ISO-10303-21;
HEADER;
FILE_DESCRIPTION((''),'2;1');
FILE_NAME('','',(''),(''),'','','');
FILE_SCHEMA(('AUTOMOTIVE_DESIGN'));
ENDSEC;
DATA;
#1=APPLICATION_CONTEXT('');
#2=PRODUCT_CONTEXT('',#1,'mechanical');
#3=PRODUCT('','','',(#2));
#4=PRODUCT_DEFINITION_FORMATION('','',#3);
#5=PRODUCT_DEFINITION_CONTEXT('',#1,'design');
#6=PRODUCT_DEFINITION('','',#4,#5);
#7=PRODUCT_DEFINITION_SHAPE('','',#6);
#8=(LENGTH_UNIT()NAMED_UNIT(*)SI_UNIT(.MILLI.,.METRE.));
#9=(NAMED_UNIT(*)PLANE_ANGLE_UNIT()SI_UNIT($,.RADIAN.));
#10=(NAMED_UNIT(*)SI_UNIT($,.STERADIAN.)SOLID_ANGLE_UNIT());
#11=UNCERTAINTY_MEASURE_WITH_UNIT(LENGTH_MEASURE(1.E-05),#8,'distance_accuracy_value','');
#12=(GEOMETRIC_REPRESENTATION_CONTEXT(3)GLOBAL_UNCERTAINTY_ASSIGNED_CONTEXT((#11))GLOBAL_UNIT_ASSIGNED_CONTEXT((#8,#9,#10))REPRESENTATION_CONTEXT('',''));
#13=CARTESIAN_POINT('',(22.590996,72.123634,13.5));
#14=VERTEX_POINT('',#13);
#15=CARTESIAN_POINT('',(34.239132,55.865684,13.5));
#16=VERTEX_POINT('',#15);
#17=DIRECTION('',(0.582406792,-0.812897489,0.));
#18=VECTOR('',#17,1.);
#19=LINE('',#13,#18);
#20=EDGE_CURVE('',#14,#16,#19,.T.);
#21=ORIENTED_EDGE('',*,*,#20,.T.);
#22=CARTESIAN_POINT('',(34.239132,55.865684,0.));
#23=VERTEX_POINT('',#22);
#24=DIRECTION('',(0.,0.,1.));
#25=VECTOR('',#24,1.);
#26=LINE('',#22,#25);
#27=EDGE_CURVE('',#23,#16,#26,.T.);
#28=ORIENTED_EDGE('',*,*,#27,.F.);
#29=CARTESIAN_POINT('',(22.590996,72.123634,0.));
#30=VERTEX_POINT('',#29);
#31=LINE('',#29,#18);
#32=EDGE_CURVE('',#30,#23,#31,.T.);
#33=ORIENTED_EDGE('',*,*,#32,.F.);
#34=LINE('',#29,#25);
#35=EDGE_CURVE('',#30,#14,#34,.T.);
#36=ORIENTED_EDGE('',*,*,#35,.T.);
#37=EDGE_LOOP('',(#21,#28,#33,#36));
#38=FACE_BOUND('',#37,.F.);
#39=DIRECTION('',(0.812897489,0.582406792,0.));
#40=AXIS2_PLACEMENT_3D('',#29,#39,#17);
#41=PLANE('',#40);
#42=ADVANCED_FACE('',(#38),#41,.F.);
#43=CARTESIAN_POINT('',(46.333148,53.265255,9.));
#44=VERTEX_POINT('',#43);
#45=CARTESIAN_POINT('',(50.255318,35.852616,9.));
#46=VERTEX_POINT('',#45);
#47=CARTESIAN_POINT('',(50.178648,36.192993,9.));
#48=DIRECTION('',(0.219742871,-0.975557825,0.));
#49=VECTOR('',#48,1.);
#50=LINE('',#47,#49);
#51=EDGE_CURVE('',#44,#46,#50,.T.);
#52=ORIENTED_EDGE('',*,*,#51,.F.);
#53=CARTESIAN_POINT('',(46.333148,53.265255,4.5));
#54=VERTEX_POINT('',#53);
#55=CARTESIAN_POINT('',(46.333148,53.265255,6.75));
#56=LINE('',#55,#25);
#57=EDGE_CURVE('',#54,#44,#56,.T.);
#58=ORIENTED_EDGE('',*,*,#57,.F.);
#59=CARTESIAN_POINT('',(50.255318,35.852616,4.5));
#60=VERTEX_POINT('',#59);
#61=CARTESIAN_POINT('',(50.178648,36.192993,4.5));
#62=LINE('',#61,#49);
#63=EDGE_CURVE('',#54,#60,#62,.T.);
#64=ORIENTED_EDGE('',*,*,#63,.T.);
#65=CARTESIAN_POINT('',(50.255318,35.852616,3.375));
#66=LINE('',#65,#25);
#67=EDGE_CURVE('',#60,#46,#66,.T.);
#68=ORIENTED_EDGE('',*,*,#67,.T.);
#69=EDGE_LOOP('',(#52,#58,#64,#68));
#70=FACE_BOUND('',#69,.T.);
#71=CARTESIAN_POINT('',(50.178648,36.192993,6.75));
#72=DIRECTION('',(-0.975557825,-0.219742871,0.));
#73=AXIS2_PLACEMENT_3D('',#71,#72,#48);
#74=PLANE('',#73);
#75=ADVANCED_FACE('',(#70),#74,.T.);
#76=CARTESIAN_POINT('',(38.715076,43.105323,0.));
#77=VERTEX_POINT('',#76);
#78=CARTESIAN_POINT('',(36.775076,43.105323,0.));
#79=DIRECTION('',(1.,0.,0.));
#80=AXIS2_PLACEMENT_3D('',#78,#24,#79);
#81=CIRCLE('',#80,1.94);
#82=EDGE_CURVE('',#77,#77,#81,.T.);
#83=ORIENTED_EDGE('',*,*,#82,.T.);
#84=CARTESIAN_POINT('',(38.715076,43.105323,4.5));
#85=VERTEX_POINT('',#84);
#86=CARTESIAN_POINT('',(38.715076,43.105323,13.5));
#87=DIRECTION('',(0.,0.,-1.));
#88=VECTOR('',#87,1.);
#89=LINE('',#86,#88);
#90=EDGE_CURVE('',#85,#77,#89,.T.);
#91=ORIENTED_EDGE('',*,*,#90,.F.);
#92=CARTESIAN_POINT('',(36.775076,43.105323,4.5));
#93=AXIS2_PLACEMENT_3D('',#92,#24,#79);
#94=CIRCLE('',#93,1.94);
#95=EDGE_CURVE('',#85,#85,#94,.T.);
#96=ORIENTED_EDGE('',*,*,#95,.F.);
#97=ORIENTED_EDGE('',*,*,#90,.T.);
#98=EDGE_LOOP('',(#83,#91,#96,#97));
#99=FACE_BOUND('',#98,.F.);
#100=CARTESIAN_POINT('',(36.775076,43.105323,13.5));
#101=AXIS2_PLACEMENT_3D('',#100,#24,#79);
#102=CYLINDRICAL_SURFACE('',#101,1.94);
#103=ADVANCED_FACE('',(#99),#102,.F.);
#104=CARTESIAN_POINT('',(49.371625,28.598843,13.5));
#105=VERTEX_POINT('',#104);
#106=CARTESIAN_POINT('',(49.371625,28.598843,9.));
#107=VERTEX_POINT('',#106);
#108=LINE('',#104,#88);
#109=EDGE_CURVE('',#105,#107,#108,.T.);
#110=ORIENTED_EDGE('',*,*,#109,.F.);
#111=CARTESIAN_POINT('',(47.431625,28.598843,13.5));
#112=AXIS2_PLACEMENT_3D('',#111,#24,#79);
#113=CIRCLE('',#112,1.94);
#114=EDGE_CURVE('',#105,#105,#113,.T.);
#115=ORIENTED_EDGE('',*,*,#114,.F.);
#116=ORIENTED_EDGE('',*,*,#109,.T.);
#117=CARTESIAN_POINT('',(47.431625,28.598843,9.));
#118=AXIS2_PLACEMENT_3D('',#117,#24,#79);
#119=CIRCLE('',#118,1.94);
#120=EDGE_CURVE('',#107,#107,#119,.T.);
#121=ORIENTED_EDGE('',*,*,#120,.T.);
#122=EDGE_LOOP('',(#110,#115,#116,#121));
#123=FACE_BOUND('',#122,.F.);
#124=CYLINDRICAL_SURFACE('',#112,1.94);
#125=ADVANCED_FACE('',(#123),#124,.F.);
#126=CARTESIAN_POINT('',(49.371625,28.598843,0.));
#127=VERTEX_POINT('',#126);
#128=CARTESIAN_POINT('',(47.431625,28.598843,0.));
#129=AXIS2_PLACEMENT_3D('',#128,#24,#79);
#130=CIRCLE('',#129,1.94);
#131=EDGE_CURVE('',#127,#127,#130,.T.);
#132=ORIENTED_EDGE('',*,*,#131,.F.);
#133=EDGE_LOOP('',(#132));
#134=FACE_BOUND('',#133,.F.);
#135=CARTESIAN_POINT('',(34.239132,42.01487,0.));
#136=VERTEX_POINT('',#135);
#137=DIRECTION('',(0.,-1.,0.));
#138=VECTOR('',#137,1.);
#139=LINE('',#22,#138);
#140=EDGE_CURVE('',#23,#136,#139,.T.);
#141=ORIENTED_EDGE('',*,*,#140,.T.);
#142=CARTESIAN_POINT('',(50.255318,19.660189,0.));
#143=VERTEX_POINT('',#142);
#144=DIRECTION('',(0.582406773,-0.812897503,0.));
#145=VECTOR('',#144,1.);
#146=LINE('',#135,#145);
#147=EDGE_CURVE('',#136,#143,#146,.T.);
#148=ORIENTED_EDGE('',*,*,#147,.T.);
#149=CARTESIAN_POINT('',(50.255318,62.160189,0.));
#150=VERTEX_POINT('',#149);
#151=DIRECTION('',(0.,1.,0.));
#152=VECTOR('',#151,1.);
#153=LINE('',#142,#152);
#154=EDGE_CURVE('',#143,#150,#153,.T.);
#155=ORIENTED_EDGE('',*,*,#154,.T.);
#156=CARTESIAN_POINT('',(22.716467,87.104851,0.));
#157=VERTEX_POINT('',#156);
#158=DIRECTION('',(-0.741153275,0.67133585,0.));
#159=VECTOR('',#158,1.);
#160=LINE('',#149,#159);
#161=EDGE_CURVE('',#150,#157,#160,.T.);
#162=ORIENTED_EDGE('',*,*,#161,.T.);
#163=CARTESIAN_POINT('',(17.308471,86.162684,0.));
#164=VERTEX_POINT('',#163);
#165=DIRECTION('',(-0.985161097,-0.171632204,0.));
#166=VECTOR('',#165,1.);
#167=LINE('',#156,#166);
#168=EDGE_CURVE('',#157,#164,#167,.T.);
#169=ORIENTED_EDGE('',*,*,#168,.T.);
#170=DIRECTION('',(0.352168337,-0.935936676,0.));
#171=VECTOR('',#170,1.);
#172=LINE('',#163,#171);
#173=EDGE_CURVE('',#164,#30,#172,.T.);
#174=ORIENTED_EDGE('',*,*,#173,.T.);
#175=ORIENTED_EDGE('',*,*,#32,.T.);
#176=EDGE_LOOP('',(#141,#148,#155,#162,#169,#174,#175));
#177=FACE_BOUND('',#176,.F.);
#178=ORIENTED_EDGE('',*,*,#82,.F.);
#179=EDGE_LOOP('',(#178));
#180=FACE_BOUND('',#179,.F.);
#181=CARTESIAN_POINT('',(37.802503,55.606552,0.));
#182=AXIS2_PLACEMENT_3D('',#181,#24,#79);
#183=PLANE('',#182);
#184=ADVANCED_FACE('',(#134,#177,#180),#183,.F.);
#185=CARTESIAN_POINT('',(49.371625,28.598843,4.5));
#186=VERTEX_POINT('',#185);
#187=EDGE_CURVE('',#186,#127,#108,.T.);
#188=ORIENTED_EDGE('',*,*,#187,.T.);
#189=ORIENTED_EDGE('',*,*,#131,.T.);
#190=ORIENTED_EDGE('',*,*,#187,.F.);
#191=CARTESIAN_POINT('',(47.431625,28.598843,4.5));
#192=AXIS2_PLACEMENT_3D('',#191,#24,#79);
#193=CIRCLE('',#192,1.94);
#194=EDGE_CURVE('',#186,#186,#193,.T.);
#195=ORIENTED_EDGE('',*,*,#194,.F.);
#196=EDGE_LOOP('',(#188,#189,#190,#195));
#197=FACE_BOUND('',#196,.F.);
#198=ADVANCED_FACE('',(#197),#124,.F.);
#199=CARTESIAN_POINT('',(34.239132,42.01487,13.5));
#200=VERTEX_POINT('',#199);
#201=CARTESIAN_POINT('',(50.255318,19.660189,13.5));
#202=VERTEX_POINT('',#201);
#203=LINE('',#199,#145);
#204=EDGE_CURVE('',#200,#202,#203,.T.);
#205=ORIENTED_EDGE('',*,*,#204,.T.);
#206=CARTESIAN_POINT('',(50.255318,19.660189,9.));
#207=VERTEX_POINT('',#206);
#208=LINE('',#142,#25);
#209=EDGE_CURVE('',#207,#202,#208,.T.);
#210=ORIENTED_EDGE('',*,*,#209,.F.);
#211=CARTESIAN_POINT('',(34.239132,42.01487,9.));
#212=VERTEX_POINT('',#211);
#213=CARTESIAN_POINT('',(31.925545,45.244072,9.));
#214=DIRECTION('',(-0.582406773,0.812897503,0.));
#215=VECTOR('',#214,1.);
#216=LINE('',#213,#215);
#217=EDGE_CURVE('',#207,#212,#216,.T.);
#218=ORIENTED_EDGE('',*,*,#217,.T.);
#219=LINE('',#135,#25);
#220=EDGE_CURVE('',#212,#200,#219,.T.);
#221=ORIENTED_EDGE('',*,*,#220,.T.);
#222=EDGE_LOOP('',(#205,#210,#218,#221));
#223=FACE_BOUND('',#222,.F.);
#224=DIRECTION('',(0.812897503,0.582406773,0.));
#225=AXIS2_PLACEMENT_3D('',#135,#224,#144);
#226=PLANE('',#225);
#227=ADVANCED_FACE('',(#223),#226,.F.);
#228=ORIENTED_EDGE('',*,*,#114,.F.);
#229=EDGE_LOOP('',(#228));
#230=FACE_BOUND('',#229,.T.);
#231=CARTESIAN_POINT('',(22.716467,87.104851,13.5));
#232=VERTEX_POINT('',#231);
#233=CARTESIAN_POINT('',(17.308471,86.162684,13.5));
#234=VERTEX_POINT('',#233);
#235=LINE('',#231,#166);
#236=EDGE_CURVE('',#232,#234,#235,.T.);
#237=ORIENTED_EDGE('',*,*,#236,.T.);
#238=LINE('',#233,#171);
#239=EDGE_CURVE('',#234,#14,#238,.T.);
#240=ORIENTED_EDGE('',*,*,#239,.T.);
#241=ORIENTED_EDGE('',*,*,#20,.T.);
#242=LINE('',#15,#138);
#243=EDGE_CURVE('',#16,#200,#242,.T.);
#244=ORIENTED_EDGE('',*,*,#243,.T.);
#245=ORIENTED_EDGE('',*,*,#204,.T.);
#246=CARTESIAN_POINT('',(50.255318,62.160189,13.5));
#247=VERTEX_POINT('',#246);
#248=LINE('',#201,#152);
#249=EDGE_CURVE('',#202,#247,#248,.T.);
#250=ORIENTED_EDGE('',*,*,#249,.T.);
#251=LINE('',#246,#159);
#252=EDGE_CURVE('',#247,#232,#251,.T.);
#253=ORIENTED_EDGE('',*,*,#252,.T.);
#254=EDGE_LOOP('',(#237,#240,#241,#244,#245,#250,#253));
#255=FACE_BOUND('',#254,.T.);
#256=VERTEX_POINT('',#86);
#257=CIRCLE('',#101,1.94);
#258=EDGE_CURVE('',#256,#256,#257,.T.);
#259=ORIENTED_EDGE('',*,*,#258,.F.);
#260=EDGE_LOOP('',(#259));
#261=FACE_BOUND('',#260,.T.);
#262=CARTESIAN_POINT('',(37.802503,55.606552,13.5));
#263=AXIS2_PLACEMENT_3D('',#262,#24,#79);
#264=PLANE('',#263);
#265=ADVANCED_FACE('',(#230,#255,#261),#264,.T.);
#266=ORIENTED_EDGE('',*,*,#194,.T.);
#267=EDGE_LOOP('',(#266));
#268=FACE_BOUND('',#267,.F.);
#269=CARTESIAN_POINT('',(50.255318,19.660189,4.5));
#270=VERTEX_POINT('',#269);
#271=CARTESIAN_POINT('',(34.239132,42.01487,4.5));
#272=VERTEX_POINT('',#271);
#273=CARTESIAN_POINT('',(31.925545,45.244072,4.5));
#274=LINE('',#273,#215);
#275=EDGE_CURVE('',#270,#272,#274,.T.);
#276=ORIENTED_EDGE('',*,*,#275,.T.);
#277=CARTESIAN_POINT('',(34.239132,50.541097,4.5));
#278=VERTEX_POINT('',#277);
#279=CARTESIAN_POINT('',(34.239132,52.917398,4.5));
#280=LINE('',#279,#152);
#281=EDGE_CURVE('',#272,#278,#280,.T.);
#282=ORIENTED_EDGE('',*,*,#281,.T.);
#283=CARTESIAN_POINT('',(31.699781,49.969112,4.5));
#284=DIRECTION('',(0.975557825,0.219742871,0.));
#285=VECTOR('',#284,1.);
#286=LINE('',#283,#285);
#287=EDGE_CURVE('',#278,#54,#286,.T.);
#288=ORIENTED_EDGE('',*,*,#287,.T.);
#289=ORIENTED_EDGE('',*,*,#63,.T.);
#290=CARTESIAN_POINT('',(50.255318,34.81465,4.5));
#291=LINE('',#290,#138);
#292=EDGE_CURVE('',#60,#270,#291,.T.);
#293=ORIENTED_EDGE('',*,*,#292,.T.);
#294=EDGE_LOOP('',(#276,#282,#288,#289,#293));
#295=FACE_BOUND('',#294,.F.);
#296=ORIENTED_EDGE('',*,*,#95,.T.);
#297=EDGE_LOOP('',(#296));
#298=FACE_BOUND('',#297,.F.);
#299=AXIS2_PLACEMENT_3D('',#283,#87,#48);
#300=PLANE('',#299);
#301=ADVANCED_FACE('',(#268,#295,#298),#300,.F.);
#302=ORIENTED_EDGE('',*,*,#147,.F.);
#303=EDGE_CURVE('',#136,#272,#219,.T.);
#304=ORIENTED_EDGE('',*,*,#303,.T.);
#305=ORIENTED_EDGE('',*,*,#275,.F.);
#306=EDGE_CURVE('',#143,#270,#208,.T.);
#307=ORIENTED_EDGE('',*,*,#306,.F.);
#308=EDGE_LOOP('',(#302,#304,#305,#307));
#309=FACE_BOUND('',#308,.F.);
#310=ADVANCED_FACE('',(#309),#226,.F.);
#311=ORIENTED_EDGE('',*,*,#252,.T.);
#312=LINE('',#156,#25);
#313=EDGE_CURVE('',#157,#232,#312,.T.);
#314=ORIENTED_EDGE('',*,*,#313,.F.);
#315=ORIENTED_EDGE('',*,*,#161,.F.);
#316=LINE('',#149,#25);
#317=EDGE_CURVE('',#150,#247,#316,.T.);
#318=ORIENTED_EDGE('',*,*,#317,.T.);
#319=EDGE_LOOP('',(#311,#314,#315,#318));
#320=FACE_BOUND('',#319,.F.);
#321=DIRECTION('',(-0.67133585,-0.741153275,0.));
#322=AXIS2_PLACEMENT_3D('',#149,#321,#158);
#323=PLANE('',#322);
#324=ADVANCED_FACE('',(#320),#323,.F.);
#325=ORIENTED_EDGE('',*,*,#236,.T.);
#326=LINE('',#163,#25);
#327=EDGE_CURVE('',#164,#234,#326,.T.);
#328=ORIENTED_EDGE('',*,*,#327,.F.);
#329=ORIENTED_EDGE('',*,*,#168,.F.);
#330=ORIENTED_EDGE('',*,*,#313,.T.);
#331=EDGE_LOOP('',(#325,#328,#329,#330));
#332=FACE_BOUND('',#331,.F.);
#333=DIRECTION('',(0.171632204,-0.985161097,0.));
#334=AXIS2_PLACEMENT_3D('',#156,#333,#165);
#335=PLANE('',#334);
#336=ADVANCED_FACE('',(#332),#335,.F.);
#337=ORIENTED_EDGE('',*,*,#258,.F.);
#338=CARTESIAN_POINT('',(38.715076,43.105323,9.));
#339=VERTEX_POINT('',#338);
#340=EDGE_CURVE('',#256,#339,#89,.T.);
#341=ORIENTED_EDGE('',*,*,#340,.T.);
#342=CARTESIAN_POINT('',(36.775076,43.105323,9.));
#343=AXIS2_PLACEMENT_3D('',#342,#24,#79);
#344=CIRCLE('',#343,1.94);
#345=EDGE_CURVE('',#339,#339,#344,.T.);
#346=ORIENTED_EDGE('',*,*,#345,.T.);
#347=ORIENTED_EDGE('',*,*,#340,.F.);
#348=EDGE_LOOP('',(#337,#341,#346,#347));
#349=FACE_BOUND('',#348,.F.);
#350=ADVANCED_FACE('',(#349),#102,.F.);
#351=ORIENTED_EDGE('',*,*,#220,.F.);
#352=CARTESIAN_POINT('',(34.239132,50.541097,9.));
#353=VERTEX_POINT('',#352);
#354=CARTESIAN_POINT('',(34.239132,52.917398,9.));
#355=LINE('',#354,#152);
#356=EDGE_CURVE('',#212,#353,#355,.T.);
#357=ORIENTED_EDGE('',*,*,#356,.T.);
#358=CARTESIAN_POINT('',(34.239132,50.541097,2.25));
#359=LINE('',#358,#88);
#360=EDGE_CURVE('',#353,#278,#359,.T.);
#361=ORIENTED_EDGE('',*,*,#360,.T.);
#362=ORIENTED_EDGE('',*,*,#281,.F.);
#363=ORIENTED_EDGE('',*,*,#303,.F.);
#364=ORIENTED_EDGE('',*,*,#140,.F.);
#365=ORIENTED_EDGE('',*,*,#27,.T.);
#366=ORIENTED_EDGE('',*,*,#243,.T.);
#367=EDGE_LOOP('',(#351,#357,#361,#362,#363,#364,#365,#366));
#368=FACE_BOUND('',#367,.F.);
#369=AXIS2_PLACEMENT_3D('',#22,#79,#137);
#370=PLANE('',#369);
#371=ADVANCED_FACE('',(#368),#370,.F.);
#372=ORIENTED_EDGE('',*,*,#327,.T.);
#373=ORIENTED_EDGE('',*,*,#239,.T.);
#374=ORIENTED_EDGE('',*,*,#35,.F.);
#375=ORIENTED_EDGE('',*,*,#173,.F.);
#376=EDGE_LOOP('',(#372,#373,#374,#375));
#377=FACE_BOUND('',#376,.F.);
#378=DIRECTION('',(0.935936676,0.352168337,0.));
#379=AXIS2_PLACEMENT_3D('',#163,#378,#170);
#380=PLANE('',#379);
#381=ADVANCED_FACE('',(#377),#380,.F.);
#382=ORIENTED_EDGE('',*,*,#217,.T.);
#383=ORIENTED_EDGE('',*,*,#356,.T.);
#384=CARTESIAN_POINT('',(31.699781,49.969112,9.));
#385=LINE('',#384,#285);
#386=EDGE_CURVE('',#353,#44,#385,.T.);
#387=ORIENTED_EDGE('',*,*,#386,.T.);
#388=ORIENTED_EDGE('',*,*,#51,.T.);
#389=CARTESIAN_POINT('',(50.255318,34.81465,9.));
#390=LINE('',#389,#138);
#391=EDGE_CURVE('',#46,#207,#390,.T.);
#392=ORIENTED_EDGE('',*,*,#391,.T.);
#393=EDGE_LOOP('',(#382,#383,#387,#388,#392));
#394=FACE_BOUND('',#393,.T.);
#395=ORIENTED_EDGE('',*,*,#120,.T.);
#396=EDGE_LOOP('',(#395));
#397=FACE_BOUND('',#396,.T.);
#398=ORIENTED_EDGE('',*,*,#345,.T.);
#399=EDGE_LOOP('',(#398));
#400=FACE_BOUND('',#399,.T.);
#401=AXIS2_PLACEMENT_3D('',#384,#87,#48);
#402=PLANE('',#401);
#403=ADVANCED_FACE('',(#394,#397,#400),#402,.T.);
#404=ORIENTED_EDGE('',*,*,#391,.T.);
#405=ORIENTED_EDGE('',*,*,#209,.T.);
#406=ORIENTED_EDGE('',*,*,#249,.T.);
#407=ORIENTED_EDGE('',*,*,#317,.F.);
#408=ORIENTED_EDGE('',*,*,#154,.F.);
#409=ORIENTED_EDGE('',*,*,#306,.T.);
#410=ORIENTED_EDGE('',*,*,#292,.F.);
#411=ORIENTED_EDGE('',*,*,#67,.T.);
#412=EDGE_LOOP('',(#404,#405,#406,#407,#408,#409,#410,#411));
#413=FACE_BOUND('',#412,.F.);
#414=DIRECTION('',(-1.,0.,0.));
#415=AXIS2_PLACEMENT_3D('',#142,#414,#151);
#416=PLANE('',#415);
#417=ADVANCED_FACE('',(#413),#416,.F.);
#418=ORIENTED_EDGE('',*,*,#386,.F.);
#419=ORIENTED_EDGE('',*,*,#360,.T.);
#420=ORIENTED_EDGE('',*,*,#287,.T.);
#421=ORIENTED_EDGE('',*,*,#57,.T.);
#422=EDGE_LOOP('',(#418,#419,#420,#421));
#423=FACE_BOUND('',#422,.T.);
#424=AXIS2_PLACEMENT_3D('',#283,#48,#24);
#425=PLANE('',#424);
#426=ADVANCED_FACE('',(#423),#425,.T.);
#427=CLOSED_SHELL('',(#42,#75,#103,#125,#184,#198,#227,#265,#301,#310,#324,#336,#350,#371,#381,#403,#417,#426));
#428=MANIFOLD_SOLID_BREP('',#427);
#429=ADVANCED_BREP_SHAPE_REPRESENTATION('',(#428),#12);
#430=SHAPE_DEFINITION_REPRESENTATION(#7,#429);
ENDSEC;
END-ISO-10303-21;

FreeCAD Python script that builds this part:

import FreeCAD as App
import Part
import Sketcher
Q = App.Units.Quantity

doc = App.newDocument("Part")
body = doc.addObject("PartDesign::Body", "Body")

# Sketch on XY plane
sketch1 = body.newObject("Sketcher::SketchObject", "Sketch")
sketch1.AttachmentSupport = (doc.getObject("XY_Plane"), [""])
sketch1.MapMode = "FlatFace"
sketch1.addGeometry([
    Part.LineSegment(App.Vector(-46.093868, 9, 0), App.Vector(-46.093868, 4.5, 0)),
    Part.LineSegment(App.Vector(-46.093868, 4.5, 0), App.Vector(-11.093868, 4.5, 0)),
    Part.LineSegment(App.Vector(-11.093868, 4.5, 0), App.Vector(-11.093868, 9, 0)),
    Part.LineSegment(App.Vector(-11.093868, 9, 0), App.Vector(-46.093868, 9, 0)),
], False)
sketch1.addConstraint([
    Sketcher.Constraint("Coincident", 0, 2, 1, 1),
    Sketcher.Constraint("Coincident", 1, 2, 2, 1),
    Sketcher.Constraint("Coincident", 2, 2, 3, 1),
    Sketcher.Constraint("Coincident", 3, 2, 0, 1),
    Sketcher.Constraint("Vertical", 0),
    Sketcher.Constraint("Horizontal", 1),
    Sketcher.Constraint("Vertical", 2),
    Sketcher.Constraint("Horizontal", 3),
    Sketcher.Constraint("DistanceX", 1, 1, 1, 2, Q("35 mm")),
    Sketcher.Constraint("DistanceY", 0, 2, 0, 1, Q("4.5 mm")),
    Sketcher.Constraint("DistanceY", -1, 1, 2, 2, Q("9 mm")),
    Sketcher.Constraint("DistanceX", 0, 2, -1, 1, Q("46.093868 mm")),
])
pad1 = body.newObject("PartDesign::Pad", "Pad")
pad1.Profile = sketch1
pad1.Length = 15
pad1.Reversed = True
body2 = doc.addObject("PartDesign::Body", "Body001")
doc.recompute()

body.Placement = App.Placement(App.Vector(0, 0, 0), App.Rotation(App.Vector(1, 0, 0), 90))
boolean = body2.newObject("PartDesign::Boolean", "Boolean")
boolean.Type = "Fuse"
boolean.addObjects([body])
body3 = doc.addObject("PartDesign::Body", "Body002")
doc.recompute()

body2.Placement = App.Placement(App.Vector(24.697887, -0.99459, 0), App.Rotation(App.Vector(0, 0, 1), 267.693931))
boolean2 = body3.newObject("PartDesign::Boolean", "Boolean001")
boolean2.Type = "Fuse"
boolean2.addObjects([body2])
body4 = doc.addObject("PartDesign::Body", "Body003")
doc.recompute()

body3.Placement = App.Placement(App.Vector(17.714834, -0.429705, 0), App.Rotation(App.Vector(0, 0, 1), 15))
boolean3 = body4.newObject("PartDesign::Boolean", "Boolean002")
boolean3.Type = "Fuse"
boolean3.addObjects([body3])
body5 = doc.addObject("PartDesign::Body", "Body004")
body5.AllowCompound = True

# Sketch on XY plane
sketch2 = body5.newObject("Sketcher::SketchObject", "Sketch001")
sketch2.AttachmentSupport = (doc.getObject("XY_Plane004"), [""])
sketch2.MapMode = "FlatFace"
sketch2.AttachmentOffset = App.Placement(App.Vector(0, 0, 13.5), App.Rotation())
sketch2.addGeometry([
    Part.Circle(App.Vector(36.775076, 43.105323, 0), App.Vector(0, 0, 1), 1.94),
    Part.Circle(App.Vector(47.431625, 28.598843, 0), App.Vector(0, 0, 1), 1.94),
], False)
sketch2.addConstraint([
    Sketcher.Constraint("Equal", 0, 1),
    Sketcher.Constraint("Diameter", 0, Q("3.88 mm")),
    Sketcher.Constraint("DistanceX", 0, 3, 1, 3, Q("10.656549 mm")),
    Sketcher.Constraint("DistanceY", 1, 3, 0, 3, Q("14.50648 mm")),
    Sketcher.Constraint("DistanceX", -1, 1, 0, 3, Q("36.775076 mm")),
    Sketcher.Constraint("DistanceY", -1, 1, 0, 3, Q("43.105323 mm")),
])
pad2 = body5.newObject("PartDesign::Pad", "Pad001")
pad2.Profile = sketch2
pad2.Length = 15
pad2.Reversed = True
body6 = doc.addObject("PartDesign::Body", "Body005")

# Sketch on XY plane
sketch3 = body6.newObject("Sketcher::SketchObject", "Sketch002")
sketch3.AttachmentSupport = (doc.getObject("XY_Plane005"), [""])
sketch3.MapMode = "FlatFace"
sketch3.addGeometry([
    Part.LineSegment(App.Vector(34.239132, 42.01487, 0), App.Vector(50.255318, 19.660189, 0)),  # 0
    Part.LineSegment(App.Vector(50.255318, 19.660189, 0), App.Vector(50.255318, 62.160189, 0)),  # 1
    Part.LineSegment(App.Vector(50.255318, 62.160189, 0), App.Vector(22.716467, 87.104851, 0)),  # 2
    Part.LineSegment(App.Vector(22.716467, 87.104851, 0), App.Vector(17.308471, 86.162684, 0)),  # 3
    Part.LineSegment(App.Vector(17.308471, 86.162684, 0), App.Vector(22.590996, 72.123634, 0)),  # 4
    Part.LineSegment(App.Vector(22.590996, 72.123634, 0), App.Vector(34.239132, 55.865684, 0)),  # 5
    Part.LineSegment(App.Vector(34.239132, 55.865684, 0), App.Vector(34.239132, 42.01487, 0)),  # 6
], False)
sketch3.addConstraint([
    Sketcher.Constraint("Coincident", 0, 2, 1, 1),
    Sketcher.Constraint("Coincident", 1, 2, 2, 1),
    Sketcher.Constraint("Coincident", 2, 2, 3, 1),
    Sketcher.Constraint("Coincident", 3, 2, 4, 1),
    Sketcher.Constraint("Coincident", 4, 2, 5, 1),
    Sketcher.Constraint("Coincident", 5, 2, 6, 1),
    Sketcher.Constraint("Coincident", 6, 2, 0, 1),
    Sketcher.Constraint("Vertical", 1),
    Sketcher.Constraint("Vertical", 6),
    Sketcher.Constraint("Parallel", 0, 5),
    Sketcher.Constraint("Distance", 4, Q("15 mm")),
    Sketcher.Constraint("Distance", 5, Q("20 mm")),
    Sketcher.Constraint("DistanceY", 1, 1, 1, 2, Q("42.5 mm")),
    Sketcher.Constraint("Distance", 0, Q("27.5 mm")),
    Sketcher.Constraint("Angle", 0, Q("-54.379999 deg")),
    Sketcher.Constraint("Angle", 4, Q("-69.380002 deg")),
    Sketcher.Constraint("DistanceY", 6, 2, 6, 1, Q("13.850814 mm")),
    Sketcher.Constraint("DistanceX", -1, 1, 0, 2, Q("50.255318 mm")),
    Sketcher.Constraint("DistanceY", -1, 1, 0, 2, Q("19.660189 mm")),
    Sketcher.Constraint("DistanceY", -1, 1, 2, 2, Q("87.104851 mm")),
    Sketcher.Constraint("DistanceX", 2, 2, 1, 2, Q("27.538851 mm")),
])
pad3 = body6.newObject("PartDesign::Pad", "Pad002")
pad3.Profile = sketch3
pad3.Length = 13.5
doc.recompute()

boolean4 = body6.newObject("PartDesign::Boolean", "Boolean003")
boolean4.Type = "Cut"
boolean4.addObjects([body5])
doc.recompute()

boolean5 = body6.newObject("PartDesign::Boolean", "Boolean004")
boolean5.Type = "Cut"
boolean5.addObjects([body4])

doc.recompute()
